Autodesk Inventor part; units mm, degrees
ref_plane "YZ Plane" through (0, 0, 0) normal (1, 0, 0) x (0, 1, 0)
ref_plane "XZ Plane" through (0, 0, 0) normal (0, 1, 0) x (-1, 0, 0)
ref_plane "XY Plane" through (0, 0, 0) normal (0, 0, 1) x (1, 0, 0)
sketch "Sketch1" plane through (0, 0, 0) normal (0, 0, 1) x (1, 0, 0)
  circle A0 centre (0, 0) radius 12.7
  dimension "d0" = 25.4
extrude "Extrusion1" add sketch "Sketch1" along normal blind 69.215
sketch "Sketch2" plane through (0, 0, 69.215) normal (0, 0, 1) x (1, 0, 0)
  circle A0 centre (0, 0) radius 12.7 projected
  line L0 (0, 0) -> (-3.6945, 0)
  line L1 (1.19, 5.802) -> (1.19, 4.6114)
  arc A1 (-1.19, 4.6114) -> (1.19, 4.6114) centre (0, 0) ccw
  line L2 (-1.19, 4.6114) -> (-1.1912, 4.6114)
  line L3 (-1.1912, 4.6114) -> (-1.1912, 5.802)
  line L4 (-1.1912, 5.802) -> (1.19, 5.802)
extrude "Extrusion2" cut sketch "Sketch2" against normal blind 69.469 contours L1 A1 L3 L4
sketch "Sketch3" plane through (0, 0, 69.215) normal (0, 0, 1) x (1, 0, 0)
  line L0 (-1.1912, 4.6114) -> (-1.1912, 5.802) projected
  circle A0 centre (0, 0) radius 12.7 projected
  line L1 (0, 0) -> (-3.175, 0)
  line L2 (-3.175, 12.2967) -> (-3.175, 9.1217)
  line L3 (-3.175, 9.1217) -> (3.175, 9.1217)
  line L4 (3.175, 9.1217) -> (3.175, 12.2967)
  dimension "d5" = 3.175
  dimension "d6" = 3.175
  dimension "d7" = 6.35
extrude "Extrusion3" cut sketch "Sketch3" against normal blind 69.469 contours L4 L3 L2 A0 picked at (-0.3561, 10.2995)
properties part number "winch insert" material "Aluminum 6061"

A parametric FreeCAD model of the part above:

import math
import FreeCAD as App
import Part
import Sketcher
Q = App.Units.Quantity

doc = App.newDocument("Part")
body = doc.addObject("PartDesign::Body", "Body")

# Sketch on XY plane
sketch1 = body.newObject("Sketcher::SketchObject", "Sketch")
sketch1.AttachmentSupport = (doc.getObject("XY_Plane"), [""])
sketch1.MapMode = "FlatFace"
sketch1.addGeometry(Part.Circle(App.Vector(0, 0, 0), App.Vector(0, 0, 1), 13), False)
sketch1.addConstraint(Sketcher.Constraint("Coincident", 0, 3, -1, 1))
sketch1.addConstraint(Sketcher.Constraint("Diameter", 0, Q("1 in")))
pad1 = body.newObject("PartDesign::Pad", "Pad")
pad1.Profile = sketch1
pad1.Length = Q("2.725 in")

# Sketch on XY plane
sketch2 = body.newObject("Sketcher::SketchObject", "Sketch001")
sketch2.AttachmentSupport = (doc.getObject("XY_Plane"), [""])
sketch2.MapMode = "FlatFace"
sketch2.AttachmentOffset = App.Placement(App.Vector(0, 0, 2.725 * 25.4), App.Rotation())
sketch2.addGeometry(Part.LineSegment(App.Vector(1.2, 4.6, 0), App.Vector(1.2, 5.8, 0)), False)
sketch2.addGeometry(Part.LineSegment(App.Vector(1.2, 5.8, 0), App.Vector(-1.2, 5.8, 0)), False)
sketch2.addGeometry(Part.LineSegment(App.Vector(-1.2, 5.8, 0), App.Vector(-1.2, 4.6, 0)), False)
sketch2.addGeometry(Part.ArcOfCircle(Part.Circle(App.Vector(0, 0, 0), App.Vector(0, 0, 1), 4.8), math.radians(104), math.radians(436)), False)
sketch2.addConstraint(Sketcher.Constraint("Coincident", 0, 2, 1, 1))
sketch2.addConstraint(Sketcher.Constraint("Coincident", 1, 2, 2, 1))
sketch2.addConstraint(Sketcher.Constraint("Coincident", 2, 2, 3, 1))
sketch2.addConstraint(Sketcher.Constraint("Coincident", 3, 2, 0, 1))
sketch2.addConstraint(Sketcher.Constraint("Vertical", 0))
sketch2.addConstraint(Sketcher.Constraint("Horizontal", 1))
sketch2.addConstraint(Sketcher.Constraint("Coincident", 3, 3, -1, 1))
sketch2.addConstraint(Sketcher.Constraint("Horizontal", 2, 2, 3, 2))
sketch2.addConstraint(Sketcher.Constraint("Radius", 3, Q("0.1875 in")))
sketch2.addConstraint(Sketcher.Constraint("DistanceX", 1, 2, 1, 1, Q("0.093748 in")))
sketch2.addConstraint(Sketcher.Constraint("DistanceY", 0, 1, 0, 2, Q("0.046874 in")))
sketch2.addConstraint(Sketcher.Constraint("DistanceX", 1, 2, -1, 1, Q("0.0469 in")))
pocket1 = body.newObject("PartDesign::Pocket", "Pocket")
pocket1.Profile = sketch2
pocket1.Length = Q("2.735 in")

# Sketch on XY plane
sketch3 = body.newObject("Sketcher::SketchObject", "Sketch002")
sketch3.AttachmentSupport = (doc.getObject("XY_Plane"), [""])
sketch3.MapMode = "FlatFace"
sketch3.AttachmentOffset = App.Placement(App.Vector(0, 0, 2.725 * 25.4), App.Rotation())
sketch3.addGeometry(Part.LineSegment(App.Vector(3.2, 9.1, 0), App.Vector(3.2, 12.3, 0)), False)
sketch3.addGeometry(Part.ArcOfCircle(Part.Circle(App.Vector(0, 0, 0), App.Vector(0, 0, 1), 12.7), math.radians(76), math.radians(104)), False)
sketch3.addGeometry(Part.LineSegment(App.Vector(-3.2, 12.3, 0), App.Vector(-3.2, 9.1, 0)), False)
sketch3.addGeometry(Part.LineSegment(App.Vector(-3.2, 9.1, 0), App.Vector(3.2, 9.1, 0)), False)
sketch3.addConstraint(Sketcher.Constraint("Coincident", 0, 2, 1, 1))
sketch3.addConstraint(Sketcher.Constraint("Coincident", 1, 2, 2, 1))
sketch3.addConstraint(Sketcher.Constraint("Coincident", 2, 2, 3, 1))
sketch3.addConstraint(Sketcher.Constraint("Coincident", 3, 2, 0, 1))
sketch3.addConstraint(Sketcher.Constraint("Vertical", 0))
sketch3.addConstraint(Sketcher.Constraint("Vertical", 2))
sketch3.addConstraint(Sketcher.Constraint("Horizontal", 3))
sketch3.addConstraint(Sketcher.Constraint("Coincident", 1, 3, -1, 1))
sketch3.addConstraint(Sketcher.Constraint("Horizontal", 0, 2, 1, 2))
sketch3.addConstraint(Sketcher.Constraint("DistanceX", 3, 1, 3, 2, Q("0.25 in")))
sketch3.addConstraint(Sketcher.Constraint("Radius", 1, Q("0.5 in")))
sketch3.addConstraint(Sketcher.Constraint("DistanceY", 0, 1, 0, 2, Q("0.125 in")))
pocket2 = body.newObject("PartDesign::Pocket", "Pocket001")
pocket2.Profile = sketch3
pocket2.Length = Q("2.735 in")

doc.recompute()
